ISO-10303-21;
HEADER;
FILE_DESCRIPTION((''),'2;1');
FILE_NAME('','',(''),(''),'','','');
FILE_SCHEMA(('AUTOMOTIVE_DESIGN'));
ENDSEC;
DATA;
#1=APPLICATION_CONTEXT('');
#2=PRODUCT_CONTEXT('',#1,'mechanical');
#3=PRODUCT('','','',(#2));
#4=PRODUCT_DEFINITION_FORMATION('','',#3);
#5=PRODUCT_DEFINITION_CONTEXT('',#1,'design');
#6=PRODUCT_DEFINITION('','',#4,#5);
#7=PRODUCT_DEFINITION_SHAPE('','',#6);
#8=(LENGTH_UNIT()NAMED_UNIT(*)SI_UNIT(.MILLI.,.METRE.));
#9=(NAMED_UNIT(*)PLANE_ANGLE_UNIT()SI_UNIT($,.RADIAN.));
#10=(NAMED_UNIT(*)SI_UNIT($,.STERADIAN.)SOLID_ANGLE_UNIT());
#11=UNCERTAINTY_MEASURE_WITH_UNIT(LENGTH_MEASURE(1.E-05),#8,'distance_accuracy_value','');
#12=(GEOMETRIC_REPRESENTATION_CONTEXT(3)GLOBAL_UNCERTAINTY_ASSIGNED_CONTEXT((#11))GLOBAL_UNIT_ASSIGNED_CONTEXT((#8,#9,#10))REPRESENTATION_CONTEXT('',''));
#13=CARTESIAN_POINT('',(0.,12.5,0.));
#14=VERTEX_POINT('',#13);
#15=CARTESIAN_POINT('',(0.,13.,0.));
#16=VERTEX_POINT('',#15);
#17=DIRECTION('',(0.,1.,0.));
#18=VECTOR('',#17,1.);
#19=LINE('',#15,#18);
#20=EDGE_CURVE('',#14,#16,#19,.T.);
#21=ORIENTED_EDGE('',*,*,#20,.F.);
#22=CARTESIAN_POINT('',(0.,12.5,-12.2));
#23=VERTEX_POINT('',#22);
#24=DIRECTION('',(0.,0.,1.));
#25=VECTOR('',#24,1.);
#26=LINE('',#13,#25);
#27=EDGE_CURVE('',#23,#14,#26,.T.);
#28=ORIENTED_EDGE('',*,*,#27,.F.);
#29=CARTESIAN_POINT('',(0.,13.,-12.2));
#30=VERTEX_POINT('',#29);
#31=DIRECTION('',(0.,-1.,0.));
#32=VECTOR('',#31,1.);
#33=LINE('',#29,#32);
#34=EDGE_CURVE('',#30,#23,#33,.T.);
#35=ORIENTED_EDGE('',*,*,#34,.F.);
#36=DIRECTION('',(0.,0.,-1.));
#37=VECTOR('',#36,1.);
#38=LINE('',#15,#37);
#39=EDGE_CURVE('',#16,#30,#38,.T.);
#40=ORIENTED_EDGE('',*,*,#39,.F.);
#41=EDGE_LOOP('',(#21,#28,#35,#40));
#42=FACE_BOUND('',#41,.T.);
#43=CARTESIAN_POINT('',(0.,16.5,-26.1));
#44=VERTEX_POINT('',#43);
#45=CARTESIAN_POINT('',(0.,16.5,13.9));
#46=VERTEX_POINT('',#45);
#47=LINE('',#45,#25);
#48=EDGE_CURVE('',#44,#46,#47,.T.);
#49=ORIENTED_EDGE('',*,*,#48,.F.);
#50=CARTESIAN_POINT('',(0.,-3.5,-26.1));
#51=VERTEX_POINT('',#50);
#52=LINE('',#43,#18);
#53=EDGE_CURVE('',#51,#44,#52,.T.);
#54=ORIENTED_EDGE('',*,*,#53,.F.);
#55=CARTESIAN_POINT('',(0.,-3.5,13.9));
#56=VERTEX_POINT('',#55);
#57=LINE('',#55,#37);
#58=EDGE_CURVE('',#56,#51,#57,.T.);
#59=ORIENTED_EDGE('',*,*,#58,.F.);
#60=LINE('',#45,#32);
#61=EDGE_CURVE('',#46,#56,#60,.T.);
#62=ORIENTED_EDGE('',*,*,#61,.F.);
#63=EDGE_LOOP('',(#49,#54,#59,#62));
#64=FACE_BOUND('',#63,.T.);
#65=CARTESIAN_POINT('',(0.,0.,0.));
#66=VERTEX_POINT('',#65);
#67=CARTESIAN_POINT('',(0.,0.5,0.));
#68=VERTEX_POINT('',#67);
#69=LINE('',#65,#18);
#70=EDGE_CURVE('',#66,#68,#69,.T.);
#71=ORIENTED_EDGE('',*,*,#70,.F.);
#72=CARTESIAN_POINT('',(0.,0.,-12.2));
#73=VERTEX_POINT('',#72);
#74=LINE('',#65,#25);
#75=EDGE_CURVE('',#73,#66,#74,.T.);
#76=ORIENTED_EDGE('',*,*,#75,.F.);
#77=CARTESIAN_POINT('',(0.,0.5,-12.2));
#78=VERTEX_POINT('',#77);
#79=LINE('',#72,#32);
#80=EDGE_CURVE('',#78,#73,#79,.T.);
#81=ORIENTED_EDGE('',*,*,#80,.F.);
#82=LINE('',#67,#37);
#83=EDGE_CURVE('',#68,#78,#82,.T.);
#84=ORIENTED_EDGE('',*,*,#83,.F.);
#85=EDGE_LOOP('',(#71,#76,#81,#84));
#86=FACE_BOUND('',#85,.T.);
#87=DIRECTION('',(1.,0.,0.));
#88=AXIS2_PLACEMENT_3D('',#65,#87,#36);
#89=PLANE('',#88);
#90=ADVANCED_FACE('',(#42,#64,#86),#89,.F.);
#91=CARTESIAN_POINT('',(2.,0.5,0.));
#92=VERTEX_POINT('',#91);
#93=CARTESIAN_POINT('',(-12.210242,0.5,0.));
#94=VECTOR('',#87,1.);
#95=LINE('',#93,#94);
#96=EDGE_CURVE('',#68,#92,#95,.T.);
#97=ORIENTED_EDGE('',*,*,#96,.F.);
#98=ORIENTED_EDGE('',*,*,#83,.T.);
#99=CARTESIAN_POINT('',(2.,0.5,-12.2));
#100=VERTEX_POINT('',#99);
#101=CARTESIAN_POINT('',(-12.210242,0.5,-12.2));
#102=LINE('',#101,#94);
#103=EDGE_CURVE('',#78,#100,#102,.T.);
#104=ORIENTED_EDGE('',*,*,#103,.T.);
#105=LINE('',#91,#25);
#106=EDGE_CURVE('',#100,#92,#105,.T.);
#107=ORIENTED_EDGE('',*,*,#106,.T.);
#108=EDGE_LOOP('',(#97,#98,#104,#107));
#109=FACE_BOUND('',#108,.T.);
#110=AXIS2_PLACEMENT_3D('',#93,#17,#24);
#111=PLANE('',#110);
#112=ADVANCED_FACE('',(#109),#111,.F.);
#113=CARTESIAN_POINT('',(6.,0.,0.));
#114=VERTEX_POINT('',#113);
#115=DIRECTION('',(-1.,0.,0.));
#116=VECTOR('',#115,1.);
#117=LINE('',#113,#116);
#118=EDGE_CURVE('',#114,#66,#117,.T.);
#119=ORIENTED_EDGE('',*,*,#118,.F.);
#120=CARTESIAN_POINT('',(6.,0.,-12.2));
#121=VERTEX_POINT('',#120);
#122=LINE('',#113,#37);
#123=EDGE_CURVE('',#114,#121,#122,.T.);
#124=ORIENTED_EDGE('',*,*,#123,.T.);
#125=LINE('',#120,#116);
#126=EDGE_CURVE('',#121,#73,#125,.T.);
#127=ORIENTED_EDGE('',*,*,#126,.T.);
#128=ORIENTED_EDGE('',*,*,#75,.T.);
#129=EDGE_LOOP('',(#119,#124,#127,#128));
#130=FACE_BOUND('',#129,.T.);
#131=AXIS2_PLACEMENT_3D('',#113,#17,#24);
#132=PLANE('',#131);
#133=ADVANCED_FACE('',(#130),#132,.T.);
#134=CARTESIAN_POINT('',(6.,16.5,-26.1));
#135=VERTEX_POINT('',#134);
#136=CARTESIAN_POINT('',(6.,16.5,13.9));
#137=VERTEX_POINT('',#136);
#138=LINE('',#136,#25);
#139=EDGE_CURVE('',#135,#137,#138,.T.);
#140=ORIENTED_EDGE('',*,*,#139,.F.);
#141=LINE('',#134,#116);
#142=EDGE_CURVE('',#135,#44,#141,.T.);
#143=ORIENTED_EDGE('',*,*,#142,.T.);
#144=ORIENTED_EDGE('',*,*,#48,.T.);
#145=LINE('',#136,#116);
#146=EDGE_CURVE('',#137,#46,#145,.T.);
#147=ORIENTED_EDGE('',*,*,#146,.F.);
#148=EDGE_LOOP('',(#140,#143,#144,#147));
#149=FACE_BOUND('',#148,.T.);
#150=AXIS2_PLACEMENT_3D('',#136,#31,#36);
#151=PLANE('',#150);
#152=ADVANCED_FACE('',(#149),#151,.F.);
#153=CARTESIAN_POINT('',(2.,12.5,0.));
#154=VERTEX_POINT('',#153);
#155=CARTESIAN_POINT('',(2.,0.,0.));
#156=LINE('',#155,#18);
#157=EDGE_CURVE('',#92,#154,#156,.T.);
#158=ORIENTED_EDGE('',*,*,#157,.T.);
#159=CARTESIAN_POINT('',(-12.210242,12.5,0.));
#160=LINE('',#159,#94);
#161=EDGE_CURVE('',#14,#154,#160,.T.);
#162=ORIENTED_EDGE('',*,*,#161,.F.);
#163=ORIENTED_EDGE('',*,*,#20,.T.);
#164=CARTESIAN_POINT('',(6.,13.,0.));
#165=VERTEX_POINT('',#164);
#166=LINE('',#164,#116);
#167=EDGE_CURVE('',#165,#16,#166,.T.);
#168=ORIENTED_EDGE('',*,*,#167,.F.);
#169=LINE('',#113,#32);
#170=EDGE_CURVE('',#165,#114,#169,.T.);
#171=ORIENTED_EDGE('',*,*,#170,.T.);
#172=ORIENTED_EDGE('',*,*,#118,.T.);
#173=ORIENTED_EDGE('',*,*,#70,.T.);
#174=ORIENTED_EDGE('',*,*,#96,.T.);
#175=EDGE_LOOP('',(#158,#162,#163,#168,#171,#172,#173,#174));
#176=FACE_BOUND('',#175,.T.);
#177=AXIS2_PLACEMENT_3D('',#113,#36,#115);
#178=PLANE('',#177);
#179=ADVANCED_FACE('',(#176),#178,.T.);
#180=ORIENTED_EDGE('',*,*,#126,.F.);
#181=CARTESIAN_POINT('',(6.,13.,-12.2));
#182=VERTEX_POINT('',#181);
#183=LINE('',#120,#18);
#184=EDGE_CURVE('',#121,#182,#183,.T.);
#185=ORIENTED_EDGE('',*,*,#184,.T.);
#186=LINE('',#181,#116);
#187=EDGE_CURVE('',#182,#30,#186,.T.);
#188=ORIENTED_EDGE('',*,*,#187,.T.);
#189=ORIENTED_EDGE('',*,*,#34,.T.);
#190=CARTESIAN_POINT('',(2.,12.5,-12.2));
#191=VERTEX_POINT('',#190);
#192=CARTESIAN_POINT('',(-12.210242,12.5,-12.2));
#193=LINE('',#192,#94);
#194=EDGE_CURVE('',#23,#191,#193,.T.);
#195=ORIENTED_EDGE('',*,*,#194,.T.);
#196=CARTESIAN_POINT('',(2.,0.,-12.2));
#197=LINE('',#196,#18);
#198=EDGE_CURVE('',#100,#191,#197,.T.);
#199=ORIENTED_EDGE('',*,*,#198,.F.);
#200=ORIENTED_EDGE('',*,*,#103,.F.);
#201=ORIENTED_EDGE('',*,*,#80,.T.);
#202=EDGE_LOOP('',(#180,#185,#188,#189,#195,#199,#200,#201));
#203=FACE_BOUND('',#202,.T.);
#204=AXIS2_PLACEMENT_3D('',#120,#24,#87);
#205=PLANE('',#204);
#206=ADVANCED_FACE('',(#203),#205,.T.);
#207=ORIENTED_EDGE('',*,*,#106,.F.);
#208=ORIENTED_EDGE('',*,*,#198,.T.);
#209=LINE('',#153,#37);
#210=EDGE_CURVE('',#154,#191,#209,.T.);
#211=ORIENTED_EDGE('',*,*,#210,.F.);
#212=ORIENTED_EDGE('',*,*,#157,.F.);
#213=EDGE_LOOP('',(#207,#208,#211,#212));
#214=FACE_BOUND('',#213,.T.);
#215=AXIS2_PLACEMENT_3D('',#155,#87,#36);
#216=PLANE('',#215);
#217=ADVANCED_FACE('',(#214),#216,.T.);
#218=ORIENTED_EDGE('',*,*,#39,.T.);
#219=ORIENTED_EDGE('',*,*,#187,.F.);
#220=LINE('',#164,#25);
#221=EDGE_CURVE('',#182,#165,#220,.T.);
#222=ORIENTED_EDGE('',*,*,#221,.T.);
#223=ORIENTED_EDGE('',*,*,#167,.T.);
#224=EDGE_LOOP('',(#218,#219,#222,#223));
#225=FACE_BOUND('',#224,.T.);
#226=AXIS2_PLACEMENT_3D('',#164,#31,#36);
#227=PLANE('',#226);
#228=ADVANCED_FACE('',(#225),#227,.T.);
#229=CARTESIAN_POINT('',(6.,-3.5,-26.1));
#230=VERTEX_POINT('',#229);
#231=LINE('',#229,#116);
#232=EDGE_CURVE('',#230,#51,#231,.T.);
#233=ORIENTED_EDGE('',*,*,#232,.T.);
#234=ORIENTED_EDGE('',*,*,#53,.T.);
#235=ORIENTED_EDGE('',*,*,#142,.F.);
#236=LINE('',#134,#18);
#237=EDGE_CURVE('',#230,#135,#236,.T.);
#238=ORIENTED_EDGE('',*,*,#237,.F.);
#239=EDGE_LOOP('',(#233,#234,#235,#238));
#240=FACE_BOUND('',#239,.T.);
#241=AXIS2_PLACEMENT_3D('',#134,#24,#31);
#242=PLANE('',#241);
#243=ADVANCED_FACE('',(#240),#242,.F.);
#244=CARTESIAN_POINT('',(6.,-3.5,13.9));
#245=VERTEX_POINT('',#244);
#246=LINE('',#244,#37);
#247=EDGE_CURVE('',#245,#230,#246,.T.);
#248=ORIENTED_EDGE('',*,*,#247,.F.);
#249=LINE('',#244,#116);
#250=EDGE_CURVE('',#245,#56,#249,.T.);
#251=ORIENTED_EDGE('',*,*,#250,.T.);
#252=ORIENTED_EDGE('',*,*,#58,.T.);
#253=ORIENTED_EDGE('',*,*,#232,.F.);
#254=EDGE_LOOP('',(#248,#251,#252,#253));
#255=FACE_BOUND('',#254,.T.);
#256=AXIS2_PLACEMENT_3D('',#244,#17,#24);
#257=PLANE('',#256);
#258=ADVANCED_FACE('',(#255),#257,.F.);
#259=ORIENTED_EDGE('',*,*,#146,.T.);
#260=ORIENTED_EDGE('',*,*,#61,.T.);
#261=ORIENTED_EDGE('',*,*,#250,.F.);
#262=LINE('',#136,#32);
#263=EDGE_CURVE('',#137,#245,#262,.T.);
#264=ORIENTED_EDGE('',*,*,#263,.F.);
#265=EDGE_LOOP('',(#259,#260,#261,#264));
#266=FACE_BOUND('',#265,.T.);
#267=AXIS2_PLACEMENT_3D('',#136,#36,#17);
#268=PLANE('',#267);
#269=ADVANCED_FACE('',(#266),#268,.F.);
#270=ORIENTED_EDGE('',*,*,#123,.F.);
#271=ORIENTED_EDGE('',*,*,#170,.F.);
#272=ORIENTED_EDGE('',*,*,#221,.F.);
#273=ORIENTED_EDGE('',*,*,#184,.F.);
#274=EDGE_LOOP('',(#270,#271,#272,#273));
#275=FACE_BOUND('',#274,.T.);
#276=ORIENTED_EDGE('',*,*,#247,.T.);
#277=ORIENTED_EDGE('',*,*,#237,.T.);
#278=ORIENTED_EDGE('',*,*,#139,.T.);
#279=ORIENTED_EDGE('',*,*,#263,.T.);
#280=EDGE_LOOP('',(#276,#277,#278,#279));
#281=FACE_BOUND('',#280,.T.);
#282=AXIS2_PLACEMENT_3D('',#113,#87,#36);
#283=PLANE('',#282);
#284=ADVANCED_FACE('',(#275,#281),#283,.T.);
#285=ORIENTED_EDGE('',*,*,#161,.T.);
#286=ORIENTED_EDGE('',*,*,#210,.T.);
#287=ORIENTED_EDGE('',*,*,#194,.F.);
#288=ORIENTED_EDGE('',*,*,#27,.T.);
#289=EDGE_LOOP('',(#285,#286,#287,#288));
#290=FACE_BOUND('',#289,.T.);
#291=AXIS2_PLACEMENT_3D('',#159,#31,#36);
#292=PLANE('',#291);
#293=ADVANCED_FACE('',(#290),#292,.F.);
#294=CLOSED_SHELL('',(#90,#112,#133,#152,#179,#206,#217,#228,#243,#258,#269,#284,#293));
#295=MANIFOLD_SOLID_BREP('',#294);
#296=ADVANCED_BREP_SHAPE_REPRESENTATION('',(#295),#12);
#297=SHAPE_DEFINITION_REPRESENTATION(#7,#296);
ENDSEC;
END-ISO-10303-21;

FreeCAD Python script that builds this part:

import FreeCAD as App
import Part
import Sketcher

V = App.Vector

doc = App.newDocument("Part")
body = doc.addObject("PartDesign::Body", "Body")

sketch1 = body.newObject("Sketcher::SketchObject", "Sketch")
sketch1.AttachmentSupport = (doc.getObject("YZ_Plane"), [""])
sketch1.MapMode = "FlatFace"
sketch1.addGeometry([
    Part.LineSegment(V(13, 0, 0), V(0, 0, 0)),
    Part.LineSegment(V(0, 0, 0), V(0, -12, 0)),
    Part.LineSegment(V(0, -12, 0), V(13, -12, 0)),
    Part.LineSegment(V(13, -12, 0), V(13, 0, 0)),
], False)
sketch1.addConstraint([
    Sketcher.Constraint("Coincident", 0, 2, 1, 1),
    Sketcher.Constraint("Coincident", 1, 2, 2, 1),
    Sketcher.Constraint("Coincident", 2, 2, 3, 1),
    Sketcher.Constraint("Coincident", 3, 2, 0, 1),
    Sketcher.Constraint("Horizontal", 0),
    Sketcher.Constraint("Vertical", 1),
    Sketcher.Constraint("Horizontal", 2),
    Sketcher.Constraint("Vertical", 3),
    Sketcher.Constraint("Coincident", 0, 2, -1, 1),
    Sketcher.Constraint("DistanceX", 0, 2, 0, 1, 13.0),
    Sketcher.Constraint("DistanceY", 1, 2, 1, 1, 12.2),
])
pad1 = body.newObject("PartDesign::Pad", "Pad")
pad1.Profile = sketch1
pad1.Length = 2

sketch2 = body.newObject("Sketcher::SketchObject", "Sketch001")
sketch2.AttachmentSupport = (doc.getObject("YZ_Plane"), [""])
sketch2.MapMode = "FlatFace"
sketch2.addGeometry([
    Part.LineSegment(V(16, 14, 0), V(-4, 14, 0)),
    Part.LineSegment(V(-4, 14, 0), V(-4, -26, 0)),
    Part.LineSegment(V(-4, -26, 0), V(16, -26, 0)),
    Part.LineSegment(V(16, -26, 0), V(16, 14, 0)),
    Part.LineSegment(V(0, -12, 0), V(0, 0, 0)),
    Part.LineSegment(V(0, 0, 0), V(13, 0, 0)),
    Part.LineSegment(V(13, 0, 0), V(13, -12, 0)),
    Part.LineSegment(V(13, -12, 0), V(0, -12, 0)),
], False)
sketch2.addConstraint([
    Sketcher.Constraint("Coincident", 0, 2, 1, 1),
    Sketcher.Constraint("Coincident", 1, 2, 2, 1),
    Sketcher.Constraint("Coincident", 2, 2, 3, 1),
    Sketcher.Constraint("Coincident", 3, 2, 0, 1),
    Sketcher.Constraint("Coincident", 4, 2, 5, 1),
    Sketcher.Constraint("Coincident", 5, 2, 6, 1),
    Sketcher.Constraint("Coincident", 6, 2, 7, 1),
    Sketcher.Constraint("Coincident", 7, 2, 4, 1),
    Sketcher.Constraint("Horizontal", 0),
    Sketcher.Constraint("Vertical", 1),
    Sketcher.Constraint("Horizontal", 2),
    Sketcher.Constraint("Vertical", 3),
    Sketcher.Constraint("Vertical", 4),
    Sketcher.Constraint("Horizontal", 5),
    Sketcher.Constraint("Vertical", 6),
    Sketcher.Constraint("Horizontal", 7),
    Sketcher.Constraint("Coincident", 4, 2, -1, 1),
    Sketcher.Constraint("DistanceX", 0, 2, 0, 1, 20.0),
    Sketcher.Constraint("DistanceX", 5, 1, 5, 2, 13.0),
    Sketcher.Constraint("DistanceY", 1, 2, 1, 1, 40.0),
    Sketcher.Constraint("DistanceY", 4, 1, 4, 2, 12.2),
    Sketcher.Constraint("DistanceX", 0, 2, -1, 1, 3.5),
    Sketcher.Constraint("DistanceY", -1, 1, 0, 2, 13.9),
])
pad2 = body.newObject("PartDesign::Pad", "Pad001")
pad2.Profile = sketch2
pad2.Length = 6

sketch3 = body.newObject("Sketcher::SketchObject", "Sketch002")
sketch3.AttachmentSupport = (doc.getObject("YZ_Plane"), [""])
sketch3.MapMode = "FlatFace"
sketch3.AttachmentOffset = App.Placement(V(0, 0, 2), App.Rotation())
sketch3.addGeometry([
    Part.LineSegment(V(0.5, 0, 0), V(0, 0, 0)),
    Part.LineSegment(V(0, 0, 0), V(0, -12.2, 0)),
    Part.LineSegment(V(0, -12.2, 0), V(0.5, -12.2, 0)),
    Part.LineSegment(V(0.5, -12.2, 0), V(0.5, 0, 0)),
    Part.LineSegment(V(13, 0, 0), V(12.5, 0, 0)),
    Part.LineSegment(V(12.5, 0, 0), V(12.5, -12.2, 0)),
    Part.LineSegment(V(12.5, -12.2, 0), V(13, -12.2, 0)),
    Part.LineSegment(V(13, -12.2, 0), V(13, 0, 0)),
], False)
sketch3.addConstraint([
    Sketcher.Constraint("Coincident", 0, 2, 1, 1),
    Sketcher.Constraint("Coincident", 1, 2, 2, 1),
    Sketcher.Constraint("Coincident", 2, 2, 3, 1),
    Sketcher.Constraint("Coincident", 3, 2, 0, 1),
    Sketcher.Constraint("Coincident", 4, 2, 5, 1),
    Sketcher.Constraint("Coincident", 5, 2, 6, 1),
    Sketcher.Constraint("Coincident", 6, 2, 7, 1),
    Sketcher.Constraint("Coincident", 7, 2, 4, 1),
    Sketcher.Constraint("Horizontal", 0),
    Sketcher.Constraint("Vertical", 1),
    Sketcher.Constraint("Horizontal", 2),
    Sketcher.Constraint("Vertical", 3),
    Sketcher.Constraint("Horizontal", 4),
    Sketcher.Constraint("Vertical", 5),
    Sketcher.Constraint("Horizontal", 6),
    Sketcher.Constraint("Vertical", 7),
    Sketcher.Constraint("Coincident", 0, 2, -1, 1),
    Sketcher.Constraint("PointOnObject", 4, 2, -1),
    Sketcher.Constraint("Horizontal", 2, 2, 5, 2),
    Sketcher.Constraint("Equal", 2, 4),
    Sketcher.Constraint("DistanceX", 0, 2, 0, 1, 0.5),
    Sketcher.Constraint("DistanceY", 1, 2, 1, 1, 12.2),
    Sketcher.Constraint("DistanceX", -1, 1, 6, 2, 13.0),
])
pocket1 = body.newObject("PartDesign::Pocket", "Pocket")
pocket1.Profile = sketch3
pocket1.Length = 2

doc.recompute()
